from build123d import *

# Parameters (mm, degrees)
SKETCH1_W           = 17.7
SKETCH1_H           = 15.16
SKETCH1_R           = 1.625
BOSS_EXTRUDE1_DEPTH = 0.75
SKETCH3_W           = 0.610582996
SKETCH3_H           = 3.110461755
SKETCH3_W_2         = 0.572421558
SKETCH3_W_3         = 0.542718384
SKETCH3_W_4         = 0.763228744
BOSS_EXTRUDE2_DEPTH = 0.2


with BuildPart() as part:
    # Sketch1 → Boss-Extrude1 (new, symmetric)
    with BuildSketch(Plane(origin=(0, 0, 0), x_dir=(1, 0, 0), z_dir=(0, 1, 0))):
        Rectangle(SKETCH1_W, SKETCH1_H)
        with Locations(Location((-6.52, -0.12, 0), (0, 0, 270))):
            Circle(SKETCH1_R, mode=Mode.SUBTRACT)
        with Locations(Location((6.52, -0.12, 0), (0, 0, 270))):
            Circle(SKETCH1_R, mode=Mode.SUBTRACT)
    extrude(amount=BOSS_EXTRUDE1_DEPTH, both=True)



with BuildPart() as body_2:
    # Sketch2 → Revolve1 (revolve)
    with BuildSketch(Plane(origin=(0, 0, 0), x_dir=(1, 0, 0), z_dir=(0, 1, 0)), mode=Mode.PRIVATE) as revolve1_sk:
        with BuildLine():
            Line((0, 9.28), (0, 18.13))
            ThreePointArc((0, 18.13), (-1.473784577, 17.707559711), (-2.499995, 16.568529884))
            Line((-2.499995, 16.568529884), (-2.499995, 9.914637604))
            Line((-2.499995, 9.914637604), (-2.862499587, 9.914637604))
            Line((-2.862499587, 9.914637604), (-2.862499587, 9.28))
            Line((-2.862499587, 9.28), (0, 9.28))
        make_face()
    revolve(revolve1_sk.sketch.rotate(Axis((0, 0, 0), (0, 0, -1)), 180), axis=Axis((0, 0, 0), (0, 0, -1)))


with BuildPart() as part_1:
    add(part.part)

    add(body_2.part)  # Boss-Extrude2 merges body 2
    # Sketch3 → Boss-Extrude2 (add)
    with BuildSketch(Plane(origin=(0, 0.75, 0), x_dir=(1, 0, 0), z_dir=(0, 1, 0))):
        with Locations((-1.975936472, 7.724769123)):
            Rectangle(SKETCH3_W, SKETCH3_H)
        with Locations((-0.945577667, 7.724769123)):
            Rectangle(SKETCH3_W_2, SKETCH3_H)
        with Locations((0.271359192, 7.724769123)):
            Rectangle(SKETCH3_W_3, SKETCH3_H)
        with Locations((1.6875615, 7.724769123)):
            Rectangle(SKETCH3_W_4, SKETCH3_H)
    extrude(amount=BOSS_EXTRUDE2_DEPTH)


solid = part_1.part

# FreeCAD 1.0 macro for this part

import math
import FreeCAD as App
import Part
import Sketcher


def add_polygon(sketch, points):
    """Adds a closed chain of lines whose ends are joined by coincident constraints."""
    first, n = sketch.GeometryCount, len(points)
    for a, b in zip(points, points[1:] + points[:1]):
        sketch.addGeometry(Part.LineSegment(App.Vector(*a, 0), App.Vector(*b, 0)), False)
    for i in range(n):
        sketch.addConstraint(Sketcher.Constraint("Coincident", first + i, 2, first + (i + 1) % n, 1))

doc = App.newDocument("Part")
body = doc.addObject("PartDesign::Body", "Body")

# Sketch on XZ plane
sketch1 = body.newObject("Sketcher::SketchObject", "Sketch")
sketch1.AttachmentSupport = (doc.getObject("XZ_Plane"), [""])
sketch1.MapMode = "FlatFace"
add_polygon(sketch1, [(-8.8, -7.6), (-8.8, 7.6), (8.8, 7.6), (8.8, -7.6)])  # lines 0-3
sketch1.addGeometry(Part.Circle(App.Vector(-6.5, 0.1, 0), App.Vector(0, 0, 1), 1.6), False)  # 4
sketch1.addGeometry(Part.Circle(App.Vector(6.5, 0.1, 0), App.Vector(0, 0, 1), 1.6), False)  # 5
sketch1.addConstraint(Sketcher.Constraint("Vertical", 0))
sketch1.addConstraint(Sketcher.Constraint("Horizontal", 1))
sketch1.addConstraint(Sketcher.Constraint("Vertical", 2))
sketch1.addConstraint(Sketcher.Constraint("Horizontal", 3))
sketch1.addConstraint(Sketcher.Constraint("Equal", 4, 5))
sketch1.addConstraint(Sketcher.Constraint("Symmetric", 0, 2, 2, 2, -1, 1))
sketch1.addConstraint(Sketcher.Constraint("Symmetric", 4, 3, 5, 3, -2))
sketch1.addConstraint(Sketcher.Constraint("Diameter", 4, 3.25))
sketch1.addConstraint(Sketcher.Constraint("DistanceX", 1, 1, 1, 2, 17.7))
sketch1.addConstraint(Sketcher.Constraint("DistanceY", 0, 1, 0, 2, 15.16))
sketch1.addConstraint(Sketcher.Constraint("DistanceY", 2, 2, 5, 3, 7.7))
sketch1.addConstraint(Sketcher.Constraint("DistanceX", 4, 3, -1, 1, 6.52))
pad1 = body.newObject("PartDesign::Pad", "Pad")
pad1.Profile = sketch1
pad1.Length = 1.5
pad1.Midplane = True
body2 = doc.addObject("PartDesign::Body", "Body001")

# Sketch on XZ plane
sketch2 = body2.newObject("Sketcher::SketchObject", "Sketch001")
sketch2.AttachmentSupport = (doc.getObject("XZ_Plane001"), [""])
sketch2.MapMode = "FlatFace"
sketch2.addGeometry(Part.LineSegment(App.Vector(0, -9.28, 0), App.Vector(0, -18.13, 0)), False)
sketch2.addGeometry(Part.ArcOfCircle(Part.Circle(App.Vector(0, -15.35, 0), App.Vector(0, 0, 1), 2.78), math.radians(-154), math.radians(-90)), False)
sketch2.addGeometry(Part.LineSegment(App.Vector(-2.5, -16.57, 0), App.Vector(-2.5, -9.91, 0)), False)
sketch2.addGeometry(Part.LineSegment(App.Vector(-2.5, -9.91, 0), App.Vector(-2.86, -9.91, 0)), False)
sketch2.addGeometry(Part.LineSegment(App.Vector(-2.86, -9.91, 0), App.Vector(-2.86, -9.28, 0)), False)
sketch2.addGeometry(Part.LineSegment(App.Vector(-2.86, -9.28, 0), App.Vector(0, -9.28, 0)), False)
sketch2.addConstraint(Sketcher.Constraint("Coincident", 0, 2, 1, 2))
sketch2.addConstraint(Sketcher.Constraint("Coincident", 1, 1, 2, 1))
sketch2.addConstraint(Sketcher.Constraint("Coincident", 2, 2, 3, 1))
sketch2.addConstraint(Sketcher.Constraint("Coincident", 3, 2, 4, 1))
sketch2.addConstraint(Sketcher.Constraint("Coincident", 4, 2, 5, 1))
sketch2.addConstraint(Sketcher.Constraint("Coincident", 5, 2, 0, 1))
sketch2.addConstraint(Sketcher.Constraint("Vertical", 0))
sketch2.addConstraint(Sketcher.Constraint("Vertical", 2))
sketch2.addConstraint(Sketcher.Constraint("Horizontal", 3))
sketch2.addConstraint(Sketcher.Constraint("Vertical", 4))
sketch2.addConstraint(Sketcher.Constraint("Horizontal", 5))
sketch2.addConstraint(Sketcher.Constraint("PointOnObject", 1, 3, -2))
sketch2.addConstraint(Sketcher.Constraint("PointOnObject", 0, 2, -2))
sketch2.addConstraint(Sketcher.Constraint("DistanceY", 0, 2, 0, 1, 8.85))
sketch2.addConstraint(Sketcher.Constraint("DistanceY", 0, 2, -1, 1, 18.13))
sketch2.addConstraint(Sketcher.Constraint("DistanceX", 5, 1, 5, 2, 2.8625))
sketch2.addConstraint(Sketcher.Constraint("Radius", 1, 2.782046))
sketch2.addConstraint(Sketcher.Constraint("DistanceX", 3, 2, 3, 1, 0.362505))
sketch2.addConstraint(Sketcher.Constraint("DistanceY", 2, 1, 2, 2, 6.653892))
revolution = body2.newObject("PartDesign::Revolution", "Revolution")
revolution.Profile = sketch2
revolution.ReferenceAxis = (sketch2, ["V_Axis"])
revolution.Angle = 360
body.AllowCompound = True
doc.recompute()

boolean = body.newObject("PartDesign::Boolean", "Boolean")
boolean.Type = "Fuse"
boolean.addObjects([body2])

# Sketch on XZ plane
sketch3 = body.newObject("Sketcher::SketchObject", "Sketch002")
sketch3.AttachmentSupport = (doc.getObject("XZ_Plane"), [""])
sketch3.MapMode = "FlatFace"
sketch3.AttachmentOffset = App.Placement(App.Vector(0, 0, -0.75), App.Rotation())
add_polygon(sketch3, [(-2.3, -9.3), (-2.3, -6.2), (-1.7, -6.2), (-1.7, -9.3)])  # lines 0-3
add_polygon(sketch3, [(-1.2, -9.3), (-1.2, -6.2), (-0.7, -6.2), (-0.7, -9.3)])  # lines 4-7
add_polygon(sketch3, [(0, -9.3), (0, -6.2), (0.5, -6.2), (0.5, -9.3)])  # lines 8-11
add_polygon(sketch3, [(1.3, -9.3), (1.3, -6.2), (2.1, -6.2), (2.1, -9.3)])  # lines 12-15
sketch3.addConstraint(Sketcher.Constraint("Vertical", 0))
sketch3.addConstraint(Sketcher.Constraint("Horizontal", 1))
sketch3.addConstraint(Sketcher.Constraint("Vertical", 2))
sketch3.addConstraint(Sketcher.Constraint("Horizontal", 3))
sketch3.addConstraint(Sketcher.Constraint("Vertical", 4))
sketch3.addConstraint(Sketcher.Constraint("Horizontal", 5))
sketch3.addConstraint(Sketcher.Constraint("Vertical", 6))
sketch3.addConstraint(Sketcher.Constraint("Horizontal", 7))
sketch3.addConstraint(Sketcher.Constraint("Vertical", 8))
sketch3.addConstraint(Sketcher.Constraint("Horizontal", 9))
sketch3.addConstraint(Sketcher.Constraint("Vertical", 10))
sketch3.addConstraint(Sketcher.Constraint("Horizontal", 11))
sketch3.addConstraint(Sketcher.Constraint("Vertical", 12))
sketch3.addConstraint(Sketcher.Constraint("Horizontal", 13))
sketch3.addConstraint(Sketcher.Constraint("Vertical", 14))
sketch3.addConstraint(Sketcher.Constraint("Horizontal", 15))
sketch3.addConstraint(Sketcher.Constraint("PointOnObject", 8, 2, -2))
sketch3.addConstraint(Sketcher.Constraint("Horizontal", 1, 2, 4, 2))
sketch3.addConstraint(Sketcher.Constraint("Horizontal", 3, 2, 6, 2))
sketch3.addConstraint(Sketcher.Constraint("Horizontal", 5, 2, 8, 2))
sketch3.addConstraint(Sketcher.Constraint("Horizontal", 7, 2, 10, 2))
sketch3.addConstraint(Sketcher.Constraint("Horizontal", 9, 2, 12, 2))
sketch3.addConstraint(Sketcher.Constraint("Horizontal", 11, 2, 14, 2))
sketch3.addConstraint(Sketcher.Constraint("DistanceY", 2, 2, -1, 1, 9.28))
sketch3.addConstraint(Sketcher.Constraint("DistanceX", 5, 1, 5, 2, 0.572422))
sketch3.addConstraint(Sketcher.Constraint("DistanceX", 9, 1, 9, 2, 0.542718))
sketch3.addConstraint(Sketcher.Constraint("DistanceX", 13, 1, 13, 2, 0.763229))
sketch3.addConstraint(Sketcher.Constraint("DistanceY", 0, 1, 0, 2, 3.110462))
sketch3.addConstraint(Sketcher.Constraint("DistanceX", 1, 1, 1, 2, 0.610583))
sketch3.addConstraint(Sketcher.Constraint("DistanceX", 4, 2, -1, 1, 1.231788))
sketch3.addConstraint(Sketcher.Constraint("DistanceX", 0, 2, 4, 2, 1.04944))
sketch3.addConstraint(Sketcher.Constraint("DistanceX", 9, 2, 12, 2, 0.763229))
pad2 = body.newObject("PartDesign::Pad", "Pad001")
pad2.Profile = sketch3
pad2.Length = 0.2
pad2.Reversed = True

doc.recompute()
